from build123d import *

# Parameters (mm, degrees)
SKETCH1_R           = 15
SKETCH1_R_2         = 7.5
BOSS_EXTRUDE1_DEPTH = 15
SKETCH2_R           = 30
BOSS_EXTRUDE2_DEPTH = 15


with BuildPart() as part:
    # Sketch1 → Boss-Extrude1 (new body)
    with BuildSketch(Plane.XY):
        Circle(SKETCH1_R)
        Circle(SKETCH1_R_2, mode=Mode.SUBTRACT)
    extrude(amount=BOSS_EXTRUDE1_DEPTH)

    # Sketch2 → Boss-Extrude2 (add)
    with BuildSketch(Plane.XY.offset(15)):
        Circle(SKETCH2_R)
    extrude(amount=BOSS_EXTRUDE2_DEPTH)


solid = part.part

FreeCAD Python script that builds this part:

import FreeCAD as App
import Part
import Sketcher
from FreeCAD import Vector

doc = App.newDocument("Part")
body = doc.addObject("PartDesign::Body", "Body")

# Sketch on XY plane
sketch1 = doc.addObject("Sketcher::SketchObject", "Sketch")
body.addObject(sketch1)
sketch1.AttachmentSupport = (doc.XY_Plane, [""])
sketch1.MapMode = "FlatFace"
sketch1.addGeometry([
    Part.Circle(Vector(0, 0, 0), Vector(0, 0, 1), 15),
    Part.Circle(Vector(0, 0, 0), Vector(0, 0, 1), 7.5),
], False)
sketch1.addConstraint([
    Sketcher.Constraint("Coincident", 0, 3, -1, 1),
    Sketcher.Constraint("Coincident", 1, 3, -1, 1),
    Sketcher.Constraint("Diameter", 0, 30.0),
    Sketcher.Constraint("Diameter", 1, 15.0),
])
pad1 = doc.addObject("PartDesign::Pad", "Pad")
body.addObject(pad1)
pad1.Profile = sketch1
pad1.Length = 15

# Sketch on XY plane
sketch2 = doc.addObject("Sketcher::SketchObject", "Sketch001")
body.addObject(sketch2)
sketch2.AttachmentSupport = (doc.XY_Plane, [""])
sketch2.MapMode = "FlatFace"
sketch2.AttachmentOffset = App.Placement(Vector(0, 0, 15), App.Rotation())
sketch2.addGeometry(Part.Circle(Vector(0, 0, 0), Vector(0, 0, 1), 30), False)
sketch2.addConstraint([
    Sketcher.Constraint("Coincident", 0, 3, -1, 1),
    Sketcher.Constraint("Diameter", 0, 60.0),
])
pad2 = doc.addObject("PartDesign::Pad", "Pad001")
body.addObject(pad2)
pad2.Profile = sketch2
pad2.Length = 15

doc.recompute()
